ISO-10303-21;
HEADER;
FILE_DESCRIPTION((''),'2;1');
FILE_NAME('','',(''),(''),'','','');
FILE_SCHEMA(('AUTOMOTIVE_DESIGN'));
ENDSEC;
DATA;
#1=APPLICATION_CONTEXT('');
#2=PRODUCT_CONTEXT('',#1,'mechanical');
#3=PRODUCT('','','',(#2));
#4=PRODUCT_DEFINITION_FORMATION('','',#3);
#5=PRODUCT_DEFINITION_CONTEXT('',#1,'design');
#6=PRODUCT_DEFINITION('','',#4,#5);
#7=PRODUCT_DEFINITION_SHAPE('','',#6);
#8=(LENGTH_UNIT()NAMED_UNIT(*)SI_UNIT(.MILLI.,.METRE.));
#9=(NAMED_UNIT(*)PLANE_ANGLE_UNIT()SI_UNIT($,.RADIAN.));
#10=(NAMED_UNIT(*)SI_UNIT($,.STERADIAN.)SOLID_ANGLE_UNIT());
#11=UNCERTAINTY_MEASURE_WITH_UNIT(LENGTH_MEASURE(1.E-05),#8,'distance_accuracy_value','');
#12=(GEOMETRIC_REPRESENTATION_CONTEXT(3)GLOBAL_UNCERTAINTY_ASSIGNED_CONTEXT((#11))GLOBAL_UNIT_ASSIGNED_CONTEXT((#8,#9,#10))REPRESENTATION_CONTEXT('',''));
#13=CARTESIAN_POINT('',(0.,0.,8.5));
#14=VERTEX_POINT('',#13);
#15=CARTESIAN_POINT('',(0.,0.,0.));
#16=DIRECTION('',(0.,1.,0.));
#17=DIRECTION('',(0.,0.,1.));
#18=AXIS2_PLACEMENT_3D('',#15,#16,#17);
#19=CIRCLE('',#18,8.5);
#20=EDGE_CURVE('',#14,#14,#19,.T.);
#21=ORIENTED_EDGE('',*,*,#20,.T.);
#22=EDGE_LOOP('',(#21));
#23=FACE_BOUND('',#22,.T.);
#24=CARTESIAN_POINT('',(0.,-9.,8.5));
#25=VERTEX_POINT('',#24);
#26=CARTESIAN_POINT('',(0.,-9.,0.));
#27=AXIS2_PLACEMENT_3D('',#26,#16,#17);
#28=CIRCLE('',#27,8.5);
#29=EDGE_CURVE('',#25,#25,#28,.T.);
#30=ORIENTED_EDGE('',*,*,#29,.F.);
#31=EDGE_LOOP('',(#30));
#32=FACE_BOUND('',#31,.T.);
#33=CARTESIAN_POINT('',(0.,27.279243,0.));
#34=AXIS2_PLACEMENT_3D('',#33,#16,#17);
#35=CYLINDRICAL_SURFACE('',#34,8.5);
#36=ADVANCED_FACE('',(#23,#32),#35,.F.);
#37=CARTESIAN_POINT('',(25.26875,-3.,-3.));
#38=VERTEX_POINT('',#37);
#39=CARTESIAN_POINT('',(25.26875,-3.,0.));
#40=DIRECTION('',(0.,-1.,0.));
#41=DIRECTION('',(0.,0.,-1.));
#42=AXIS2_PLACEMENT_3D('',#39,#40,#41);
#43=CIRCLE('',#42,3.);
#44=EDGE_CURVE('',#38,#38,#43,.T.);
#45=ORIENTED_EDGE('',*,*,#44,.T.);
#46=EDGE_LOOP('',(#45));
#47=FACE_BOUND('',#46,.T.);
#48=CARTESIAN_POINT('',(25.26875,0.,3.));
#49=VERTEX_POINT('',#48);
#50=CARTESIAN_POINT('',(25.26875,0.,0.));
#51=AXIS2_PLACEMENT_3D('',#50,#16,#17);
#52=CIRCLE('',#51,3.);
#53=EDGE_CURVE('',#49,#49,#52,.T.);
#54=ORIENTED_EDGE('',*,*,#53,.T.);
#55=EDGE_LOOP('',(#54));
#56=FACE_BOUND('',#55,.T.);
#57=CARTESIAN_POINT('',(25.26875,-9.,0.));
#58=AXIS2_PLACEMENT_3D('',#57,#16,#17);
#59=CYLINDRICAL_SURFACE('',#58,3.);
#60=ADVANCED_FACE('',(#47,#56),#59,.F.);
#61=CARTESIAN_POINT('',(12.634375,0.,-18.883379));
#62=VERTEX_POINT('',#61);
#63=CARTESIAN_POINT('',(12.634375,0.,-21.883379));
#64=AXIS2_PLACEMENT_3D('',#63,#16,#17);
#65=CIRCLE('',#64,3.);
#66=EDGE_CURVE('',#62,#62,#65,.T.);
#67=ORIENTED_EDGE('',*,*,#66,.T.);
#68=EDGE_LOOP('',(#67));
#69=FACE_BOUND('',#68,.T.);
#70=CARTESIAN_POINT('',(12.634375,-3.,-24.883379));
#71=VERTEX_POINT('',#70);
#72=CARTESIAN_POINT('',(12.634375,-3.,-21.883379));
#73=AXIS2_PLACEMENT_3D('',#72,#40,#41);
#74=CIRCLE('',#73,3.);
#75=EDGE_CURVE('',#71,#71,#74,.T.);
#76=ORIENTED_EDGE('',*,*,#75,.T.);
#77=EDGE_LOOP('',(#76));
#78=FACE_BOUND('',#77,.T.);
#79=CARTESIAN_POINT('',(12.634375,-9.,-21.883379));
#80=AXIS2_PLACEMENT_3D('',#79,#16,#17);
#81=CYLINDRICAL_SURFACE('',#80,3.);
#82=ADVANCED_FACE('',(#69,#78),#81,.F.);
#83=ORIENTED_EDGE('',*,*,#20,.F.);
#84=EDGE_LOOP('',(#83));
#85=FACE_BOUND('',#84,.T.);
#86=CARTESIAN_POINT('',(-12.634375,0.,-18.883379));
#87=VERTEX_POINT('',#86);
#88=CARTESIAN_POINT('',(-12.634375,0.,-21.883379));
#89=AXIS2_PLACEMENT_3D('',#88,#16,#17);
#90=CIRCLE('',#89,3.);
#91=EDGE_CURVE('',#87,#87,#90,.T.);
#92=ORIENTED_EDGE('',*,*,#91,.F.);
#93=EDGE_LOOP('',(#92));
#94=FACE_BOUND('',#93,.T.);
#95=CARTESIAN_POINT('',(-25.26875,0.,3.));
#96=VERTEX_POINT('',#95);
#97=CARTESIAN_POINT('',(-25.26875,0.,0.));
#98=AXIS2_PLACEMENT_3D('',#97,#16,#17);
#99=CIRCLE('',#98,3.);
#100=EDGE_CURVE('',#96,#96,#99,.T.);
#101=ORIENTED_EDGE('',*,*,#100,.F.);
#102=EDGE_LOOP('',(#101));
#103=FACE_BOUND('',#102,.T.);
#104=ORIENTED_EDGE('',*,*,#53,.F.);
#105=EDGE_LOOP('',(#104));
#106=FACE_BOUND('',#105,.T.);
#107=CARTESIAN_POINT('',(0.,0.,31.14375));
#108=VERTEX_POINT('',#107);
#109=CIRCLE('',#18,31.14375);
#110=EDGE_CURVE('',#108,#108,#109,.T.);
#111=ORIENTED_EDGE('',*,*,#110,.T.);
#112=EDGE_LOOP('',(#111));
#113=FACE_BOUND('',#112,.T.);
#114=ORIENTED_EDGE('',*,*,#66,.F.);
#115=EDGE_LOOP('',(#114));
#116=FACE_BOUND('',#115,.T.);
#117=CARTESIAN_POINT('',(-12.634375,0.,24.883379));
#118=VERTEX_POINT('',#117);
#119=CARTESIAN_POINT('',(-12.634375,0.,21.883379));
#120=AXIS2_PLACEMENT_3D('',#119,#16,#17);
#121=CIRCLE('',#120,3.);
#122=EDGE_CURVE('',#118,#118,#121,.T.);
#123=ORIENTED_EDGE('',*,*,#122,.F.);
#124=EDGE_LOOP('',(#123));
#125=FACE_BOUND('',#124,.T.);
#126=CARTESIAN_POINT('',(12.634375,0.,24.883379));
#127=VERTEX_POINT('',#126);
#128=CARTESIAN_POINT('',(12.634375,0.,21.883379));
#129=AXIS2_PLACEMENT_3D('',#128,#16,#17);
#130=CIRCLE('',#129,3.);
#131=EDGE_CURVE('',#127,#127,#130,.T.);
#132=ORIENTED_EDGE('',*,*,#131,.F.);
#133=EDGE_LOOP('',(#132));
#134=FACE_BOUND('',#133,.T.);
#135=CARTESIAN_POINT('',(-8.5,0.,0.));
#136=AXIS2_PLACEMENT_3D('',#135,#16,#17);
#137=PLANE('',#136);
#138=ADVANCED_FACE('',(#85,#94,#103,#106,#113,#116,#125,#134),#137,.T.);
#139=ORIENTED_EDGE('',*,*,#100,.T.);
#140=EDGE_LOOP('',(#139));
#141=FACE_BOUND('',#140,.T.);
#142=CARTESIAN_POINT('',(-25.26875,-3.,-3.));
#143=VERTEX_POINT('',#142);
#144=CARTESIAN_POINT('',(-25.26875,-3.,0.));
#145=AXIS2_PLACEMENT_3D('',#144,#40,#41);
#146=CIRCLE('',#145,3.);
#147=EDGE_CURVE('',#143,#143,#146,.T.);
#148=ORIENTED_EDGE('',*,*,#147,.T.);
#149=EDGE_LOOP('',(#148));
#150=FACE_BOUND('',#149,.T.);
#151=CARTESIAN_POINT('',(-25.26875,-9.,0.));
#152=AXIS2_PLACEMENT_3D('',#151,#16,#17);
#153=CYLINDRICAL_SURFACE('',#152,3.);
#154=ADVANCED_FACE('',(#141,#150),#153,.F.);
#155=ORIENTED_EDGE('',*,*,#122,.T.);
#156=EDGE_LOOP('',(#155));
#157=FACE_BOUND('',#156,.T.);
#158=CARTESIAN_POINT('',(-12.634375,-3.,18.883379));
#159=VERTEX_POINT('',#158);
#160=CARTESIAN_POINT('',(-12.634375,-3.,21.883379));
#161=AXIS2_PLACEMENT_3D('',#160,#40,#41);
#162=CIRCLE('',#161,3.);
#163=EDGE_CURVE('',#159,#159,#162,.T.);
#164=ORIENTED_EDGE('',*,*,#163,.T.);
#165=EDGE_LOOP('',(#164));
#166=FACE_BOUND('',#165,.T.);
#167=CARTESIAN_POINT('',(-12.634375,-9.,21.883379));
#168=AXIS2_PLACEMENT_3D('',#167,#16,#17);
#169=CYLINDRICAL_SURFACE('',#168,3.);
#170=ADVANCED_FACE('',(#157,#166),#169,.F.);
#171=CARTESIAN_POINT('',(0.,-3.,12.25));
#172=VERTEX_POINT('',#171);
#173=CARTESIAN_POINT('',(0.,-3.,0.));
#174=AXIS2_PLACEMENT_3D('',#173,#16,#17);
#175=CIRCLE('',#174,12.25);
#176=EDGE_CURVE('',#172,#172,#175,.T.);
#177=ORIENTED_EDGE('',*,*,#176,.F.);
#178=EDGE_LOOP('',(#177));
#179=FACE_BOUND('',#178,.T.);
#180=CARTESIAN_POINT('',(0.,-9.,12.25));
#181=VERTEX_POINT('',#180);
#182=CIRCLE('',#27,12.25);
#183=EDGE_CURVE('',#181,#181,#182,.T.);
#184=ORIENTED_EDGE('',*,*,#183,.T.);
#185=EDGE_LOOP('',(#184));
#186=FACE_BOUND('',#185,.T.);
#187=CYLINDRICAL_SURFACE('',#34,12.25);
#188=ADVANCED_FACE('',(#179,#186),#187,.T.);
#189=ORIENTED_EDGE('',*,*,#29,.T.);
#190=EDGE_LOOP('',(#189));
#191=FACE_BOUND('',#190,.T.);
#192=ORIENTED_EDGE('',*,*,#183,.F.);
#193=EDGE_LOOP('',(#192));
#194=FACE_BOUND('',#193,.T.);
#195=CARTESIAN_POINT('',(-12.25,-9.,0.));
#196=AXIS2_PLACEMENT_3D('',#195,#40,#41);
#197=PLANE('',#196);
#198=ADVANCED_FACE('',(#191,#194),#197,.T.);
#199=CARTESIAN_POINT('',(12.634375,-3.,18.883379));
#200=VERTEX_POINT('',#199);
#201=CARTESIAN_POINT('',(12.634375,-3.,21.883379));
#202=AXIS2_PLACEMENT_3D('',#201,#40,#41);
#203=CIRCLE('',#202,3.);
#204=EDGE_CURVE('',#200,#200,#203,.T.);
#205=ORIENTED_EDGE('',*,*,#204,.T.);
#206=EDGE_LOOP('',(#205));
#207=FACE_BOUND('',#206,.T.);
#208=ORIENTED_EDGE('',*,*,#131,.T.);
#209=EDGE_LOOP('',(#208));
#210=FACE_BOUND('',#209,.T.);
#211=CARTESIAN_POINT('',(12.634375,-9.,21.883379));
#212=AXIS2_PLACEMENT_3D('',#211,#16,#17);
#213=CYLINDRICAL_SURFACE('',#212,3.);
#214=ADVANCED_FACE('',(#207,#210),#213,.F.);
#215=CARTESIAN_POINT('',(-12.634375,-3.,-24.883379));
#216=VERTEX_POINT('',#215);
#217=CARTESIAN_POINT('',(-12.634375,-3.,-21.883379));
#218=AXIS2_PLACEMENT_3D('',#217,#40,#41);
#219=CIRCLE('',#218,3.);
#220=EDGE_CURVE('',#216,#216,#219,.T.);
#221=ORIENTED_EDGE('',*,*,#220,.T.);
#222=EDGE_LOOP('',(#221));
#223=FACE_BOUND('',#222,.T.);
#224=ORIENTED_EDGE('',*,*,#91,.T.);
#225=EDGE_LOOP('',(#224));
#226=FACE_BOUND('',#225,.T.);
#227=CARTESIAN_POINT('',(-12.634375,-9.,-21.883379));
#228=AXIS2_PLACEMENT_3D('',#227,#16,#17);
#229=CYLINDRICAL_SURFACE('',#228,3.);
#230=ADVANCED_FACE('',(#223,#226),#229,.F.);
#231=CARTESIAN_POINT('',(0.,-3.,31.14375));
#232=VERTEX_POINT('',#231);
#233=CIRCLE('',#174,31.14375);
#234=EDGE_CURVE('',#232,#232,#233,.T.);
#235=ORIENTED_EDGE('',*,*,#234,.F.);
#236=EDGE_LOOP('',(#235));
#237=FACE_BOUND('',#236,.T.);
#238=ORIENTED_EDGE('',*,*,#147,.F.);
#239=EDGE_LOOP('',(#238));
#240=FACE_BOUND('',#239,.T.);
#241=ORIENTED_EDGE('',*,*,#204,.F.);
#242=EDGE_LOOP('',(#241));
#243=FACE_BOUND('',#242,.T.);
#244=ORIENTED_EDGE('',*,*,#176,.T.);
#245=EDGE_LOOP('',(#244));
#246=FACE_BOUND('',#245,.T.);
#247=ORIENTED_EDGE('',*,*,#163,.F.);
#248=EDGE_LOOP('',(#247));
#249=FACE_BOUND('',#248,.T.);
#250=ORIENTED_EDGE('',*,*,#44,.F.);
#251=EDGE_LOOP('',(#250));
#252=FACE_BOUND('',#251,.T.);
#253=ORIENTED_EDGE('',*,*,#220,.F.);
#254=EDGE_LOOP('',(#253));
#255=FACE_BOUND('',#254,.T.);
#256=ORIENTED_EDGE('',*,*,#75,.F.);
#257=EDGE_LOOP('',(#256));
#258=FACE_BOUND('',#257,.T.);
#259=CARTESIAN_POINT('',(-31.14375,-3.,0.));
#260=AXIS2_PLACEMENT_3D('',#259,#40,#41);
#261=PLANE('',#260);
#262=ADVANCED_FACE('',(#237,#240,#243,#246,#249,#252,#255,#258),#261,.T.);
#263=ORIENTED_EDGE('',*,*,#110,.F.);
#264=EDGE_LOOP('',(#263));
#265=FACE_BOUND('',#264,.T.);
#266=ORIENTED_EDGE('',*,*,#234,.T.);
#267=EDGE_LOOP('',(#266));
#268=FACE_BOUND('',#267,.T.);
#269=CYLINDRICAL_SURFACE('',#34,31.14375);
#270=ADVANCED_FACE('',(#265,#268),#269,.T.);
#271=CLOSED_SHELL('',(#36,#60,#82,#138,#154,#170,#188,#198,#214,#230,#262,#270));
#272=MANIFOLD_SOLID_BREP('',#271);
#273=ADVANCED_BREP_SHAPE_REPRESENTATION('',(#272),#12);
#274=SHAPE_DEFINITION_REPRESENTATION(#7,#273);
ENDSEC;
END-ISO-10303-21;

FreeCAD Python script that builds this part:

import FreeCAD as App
import Part
import Sketcher
from FreeCAD import Vector
Q = App.Units.Quantity

doc = App.newDocument("Part")
body = doc.addObject("PartDesign::Body", "Body")

sketch1 = body.newObject("Sketcher::SketchObject", "Sketch")
sketch1.AttachmentSupport = (doc.getObject("XY_Plane"), [""])
sketch1.MapMode = "FlatFace"
sketch1.addGeometry(Part.LineSegment(Vector(-8.5, 0, 0), Vector(-31.14375, 0, 0)), False)
sketch1.addGeometry(Part.LineSegment(Vector(-31.14375, 0, 0), Vector(-31.14375, -3, 0)), False)
sketch1.addGeometry(Part.LineSegment(Vector(-31.14375, -3, 0), Vector(-12.25, -3, 0)), False)
sketch1.addGeometry(Part.LineSegment(Vector(-12.25, -3, 0), Vector(-12.25, -9, 0)), False)
sketch1.addGeometry(Part.LineSegment(Vector(-12.25, -9, 0), Vector(-8.5, -9, 0)), False)
sketch1.addGeometry(Part.LineSegment(Vector(-8.5, -9, 0), Vector(-8.5, 0, 0)), False)
sketch1.addConstraint(Sketcher.Constraint("Coincident", 0, 2, 1, 1))
sketch1.addConstraint(Sketcher.Constraint("Coincident", 1, 2, 2, 1))
sketch1.addConstraint(Sketcher.Constraint("Coincident", 2, 2, 3, 1))
sketch1.addConstraint(Sketcher.Constraint("Coincident", 3, 2, 4, 1))
sketch1.addConstraint(Sketcher.Constraint("Coincident", 4, 2, 5, 1))
sketch1.addConstraint(Sketcher.Constraint("Coincident", 5, 2, 0, 1))
sketch1.addConstraint(Sketcher.Constraint("Horizontal", 0))
sketch1.addConstraint(Sketcher.Constraint("Vertical", 1))
sketch1.addConstraint(Sketcher.Constraint("Horizontal", 2))
sketch1.addConstraint(Sketcher.Constraint("Vertical", 3))
sketch1.addConstraint(Sketcher.Constraint("Horizontal", 4))
sketch1.addConstraint(Sketcher.Constraint("Vertical", 5))
sketch1.addConstraint(Sketcher.Constraint("PointOnObject", 0, 2, -1))
sketch1.addConstraint(Sketcher.Constraint("DistanceY", 1, 2, 1, 1, Q("3 mm")))
sketch1.addConstraint(Sketcher.Constraint("DistanceY", 3, 2, 3, 1, Q("6 mm")))
sketch1.addConstraint(Sketcher.Constraint("DistanceX", 4, 1, 4, 2, Q("3.75 mm")))
sketch1.addConstraint(Sketcher.Constraint("DistanceX", 4, 2, -1, 1, Q("8.5 mm")))
sketch1.addConstraint(Sketcher.Constraint("DistanceX", 0, 2, 0, 1, Q("22.64375 mm")))
revolution = body.newObject("PartDesign::Revolution", "Revolution")
revolution.Profile = sketch1
revolution.ReferenceAxis = (sketch1, ["V_Axis"])
revolution.Angle = 360

sketch2 = body.newObject("Sketcher::SketchObject", "Sketch001")
sketch2.AttachmentSupport = (doc.getObject("XZ_Plane"), [""])
sketch2.MapMode = "FlatFace"
sketch2.addGeometry(Part.Circle(Vector(-25.26875, 0, 0), Vector(0, 0, 1), 3), False)
sketch2.addGeometry(Part.Circle(Vector(-12.634375, -21.883379, 0), Vector(0, 0, 1), 3), False)
sketch2.addGeometry(Part.Circle(Vector(12.634375, -21.883379, 0), Vector(0, 0, 1), 3), False)
sketch2.addGeometry(Part.Circle(Vector(25.26875, 0, 0), Vector(0, 0, 1), 3), False)
sketch2.addGeometry(Part.Circle(Vector(12.634375, 21.883379, 0), Vector(0, 0, 1), 3), False)
sketch2.addGeometry(Part.Circle(Vector(-12.634375, 21.883379, 0), Vector(0, 0, 1), 3), False)
sketch2.addConstraint(Sketcher.Constraint("Equal", 0, 1))
sketch2.addConstraint(Sketcher.Constraint("Equal", 1, 2))
sketch2.addConstraint(Sketcher.Constraint("Equal", 2, 3))
sketch2.addConstraint(Sketcher.Constraint("Equal", 3, 4))
sketch2.addConstraint(Sketcher.Constraint("Equal", 4, 5))
sketch2.addConstraint(Sketcher.Constraint("Symmetric", 0, 3, 3, 3, -1, 1))
sketch2.addConstraint(Sketcher.Constraint("Symmetric", 1, 3, 4, 3, -1, 1))
sketch2.addConstraint(Sketcher.Constraint("Symmetric", 2, 3, 5, 3, -1, 1))
sketch2.addConstraint(Sketcher.Constraint("Symmetric", 1, 3, 2, 3, -2))
sketch2.addConstraint(Sketcher.Constraint("PointOnObject", 0, 3, -1))
sketch2.addConstraint(Sketcher.Constraint("Diameter", 0, Q("6 mm")))
sketch2.addConstraint(Sketcher.Constraint("DistanceX", 0, 3, 3, 3, Q("50.5375 mm")))
sketch2.addConstraint(Sketcher.Constraint("DistanceY", 1, 3, -1, 1, Q("21.883379 mm")))
sketch2.addConstraint(Sketcher.Constraint("DistanceX", 1, 3, 2, 3, Q("25.26875 mm")))
pocket1 = body.newObject("PartDesign::Pocket", "Pocket")
pocket1.Profile = sketch2
pocket1.Type = "ThroughAll"
pocket1.Reversed = True

doc.recompute()
